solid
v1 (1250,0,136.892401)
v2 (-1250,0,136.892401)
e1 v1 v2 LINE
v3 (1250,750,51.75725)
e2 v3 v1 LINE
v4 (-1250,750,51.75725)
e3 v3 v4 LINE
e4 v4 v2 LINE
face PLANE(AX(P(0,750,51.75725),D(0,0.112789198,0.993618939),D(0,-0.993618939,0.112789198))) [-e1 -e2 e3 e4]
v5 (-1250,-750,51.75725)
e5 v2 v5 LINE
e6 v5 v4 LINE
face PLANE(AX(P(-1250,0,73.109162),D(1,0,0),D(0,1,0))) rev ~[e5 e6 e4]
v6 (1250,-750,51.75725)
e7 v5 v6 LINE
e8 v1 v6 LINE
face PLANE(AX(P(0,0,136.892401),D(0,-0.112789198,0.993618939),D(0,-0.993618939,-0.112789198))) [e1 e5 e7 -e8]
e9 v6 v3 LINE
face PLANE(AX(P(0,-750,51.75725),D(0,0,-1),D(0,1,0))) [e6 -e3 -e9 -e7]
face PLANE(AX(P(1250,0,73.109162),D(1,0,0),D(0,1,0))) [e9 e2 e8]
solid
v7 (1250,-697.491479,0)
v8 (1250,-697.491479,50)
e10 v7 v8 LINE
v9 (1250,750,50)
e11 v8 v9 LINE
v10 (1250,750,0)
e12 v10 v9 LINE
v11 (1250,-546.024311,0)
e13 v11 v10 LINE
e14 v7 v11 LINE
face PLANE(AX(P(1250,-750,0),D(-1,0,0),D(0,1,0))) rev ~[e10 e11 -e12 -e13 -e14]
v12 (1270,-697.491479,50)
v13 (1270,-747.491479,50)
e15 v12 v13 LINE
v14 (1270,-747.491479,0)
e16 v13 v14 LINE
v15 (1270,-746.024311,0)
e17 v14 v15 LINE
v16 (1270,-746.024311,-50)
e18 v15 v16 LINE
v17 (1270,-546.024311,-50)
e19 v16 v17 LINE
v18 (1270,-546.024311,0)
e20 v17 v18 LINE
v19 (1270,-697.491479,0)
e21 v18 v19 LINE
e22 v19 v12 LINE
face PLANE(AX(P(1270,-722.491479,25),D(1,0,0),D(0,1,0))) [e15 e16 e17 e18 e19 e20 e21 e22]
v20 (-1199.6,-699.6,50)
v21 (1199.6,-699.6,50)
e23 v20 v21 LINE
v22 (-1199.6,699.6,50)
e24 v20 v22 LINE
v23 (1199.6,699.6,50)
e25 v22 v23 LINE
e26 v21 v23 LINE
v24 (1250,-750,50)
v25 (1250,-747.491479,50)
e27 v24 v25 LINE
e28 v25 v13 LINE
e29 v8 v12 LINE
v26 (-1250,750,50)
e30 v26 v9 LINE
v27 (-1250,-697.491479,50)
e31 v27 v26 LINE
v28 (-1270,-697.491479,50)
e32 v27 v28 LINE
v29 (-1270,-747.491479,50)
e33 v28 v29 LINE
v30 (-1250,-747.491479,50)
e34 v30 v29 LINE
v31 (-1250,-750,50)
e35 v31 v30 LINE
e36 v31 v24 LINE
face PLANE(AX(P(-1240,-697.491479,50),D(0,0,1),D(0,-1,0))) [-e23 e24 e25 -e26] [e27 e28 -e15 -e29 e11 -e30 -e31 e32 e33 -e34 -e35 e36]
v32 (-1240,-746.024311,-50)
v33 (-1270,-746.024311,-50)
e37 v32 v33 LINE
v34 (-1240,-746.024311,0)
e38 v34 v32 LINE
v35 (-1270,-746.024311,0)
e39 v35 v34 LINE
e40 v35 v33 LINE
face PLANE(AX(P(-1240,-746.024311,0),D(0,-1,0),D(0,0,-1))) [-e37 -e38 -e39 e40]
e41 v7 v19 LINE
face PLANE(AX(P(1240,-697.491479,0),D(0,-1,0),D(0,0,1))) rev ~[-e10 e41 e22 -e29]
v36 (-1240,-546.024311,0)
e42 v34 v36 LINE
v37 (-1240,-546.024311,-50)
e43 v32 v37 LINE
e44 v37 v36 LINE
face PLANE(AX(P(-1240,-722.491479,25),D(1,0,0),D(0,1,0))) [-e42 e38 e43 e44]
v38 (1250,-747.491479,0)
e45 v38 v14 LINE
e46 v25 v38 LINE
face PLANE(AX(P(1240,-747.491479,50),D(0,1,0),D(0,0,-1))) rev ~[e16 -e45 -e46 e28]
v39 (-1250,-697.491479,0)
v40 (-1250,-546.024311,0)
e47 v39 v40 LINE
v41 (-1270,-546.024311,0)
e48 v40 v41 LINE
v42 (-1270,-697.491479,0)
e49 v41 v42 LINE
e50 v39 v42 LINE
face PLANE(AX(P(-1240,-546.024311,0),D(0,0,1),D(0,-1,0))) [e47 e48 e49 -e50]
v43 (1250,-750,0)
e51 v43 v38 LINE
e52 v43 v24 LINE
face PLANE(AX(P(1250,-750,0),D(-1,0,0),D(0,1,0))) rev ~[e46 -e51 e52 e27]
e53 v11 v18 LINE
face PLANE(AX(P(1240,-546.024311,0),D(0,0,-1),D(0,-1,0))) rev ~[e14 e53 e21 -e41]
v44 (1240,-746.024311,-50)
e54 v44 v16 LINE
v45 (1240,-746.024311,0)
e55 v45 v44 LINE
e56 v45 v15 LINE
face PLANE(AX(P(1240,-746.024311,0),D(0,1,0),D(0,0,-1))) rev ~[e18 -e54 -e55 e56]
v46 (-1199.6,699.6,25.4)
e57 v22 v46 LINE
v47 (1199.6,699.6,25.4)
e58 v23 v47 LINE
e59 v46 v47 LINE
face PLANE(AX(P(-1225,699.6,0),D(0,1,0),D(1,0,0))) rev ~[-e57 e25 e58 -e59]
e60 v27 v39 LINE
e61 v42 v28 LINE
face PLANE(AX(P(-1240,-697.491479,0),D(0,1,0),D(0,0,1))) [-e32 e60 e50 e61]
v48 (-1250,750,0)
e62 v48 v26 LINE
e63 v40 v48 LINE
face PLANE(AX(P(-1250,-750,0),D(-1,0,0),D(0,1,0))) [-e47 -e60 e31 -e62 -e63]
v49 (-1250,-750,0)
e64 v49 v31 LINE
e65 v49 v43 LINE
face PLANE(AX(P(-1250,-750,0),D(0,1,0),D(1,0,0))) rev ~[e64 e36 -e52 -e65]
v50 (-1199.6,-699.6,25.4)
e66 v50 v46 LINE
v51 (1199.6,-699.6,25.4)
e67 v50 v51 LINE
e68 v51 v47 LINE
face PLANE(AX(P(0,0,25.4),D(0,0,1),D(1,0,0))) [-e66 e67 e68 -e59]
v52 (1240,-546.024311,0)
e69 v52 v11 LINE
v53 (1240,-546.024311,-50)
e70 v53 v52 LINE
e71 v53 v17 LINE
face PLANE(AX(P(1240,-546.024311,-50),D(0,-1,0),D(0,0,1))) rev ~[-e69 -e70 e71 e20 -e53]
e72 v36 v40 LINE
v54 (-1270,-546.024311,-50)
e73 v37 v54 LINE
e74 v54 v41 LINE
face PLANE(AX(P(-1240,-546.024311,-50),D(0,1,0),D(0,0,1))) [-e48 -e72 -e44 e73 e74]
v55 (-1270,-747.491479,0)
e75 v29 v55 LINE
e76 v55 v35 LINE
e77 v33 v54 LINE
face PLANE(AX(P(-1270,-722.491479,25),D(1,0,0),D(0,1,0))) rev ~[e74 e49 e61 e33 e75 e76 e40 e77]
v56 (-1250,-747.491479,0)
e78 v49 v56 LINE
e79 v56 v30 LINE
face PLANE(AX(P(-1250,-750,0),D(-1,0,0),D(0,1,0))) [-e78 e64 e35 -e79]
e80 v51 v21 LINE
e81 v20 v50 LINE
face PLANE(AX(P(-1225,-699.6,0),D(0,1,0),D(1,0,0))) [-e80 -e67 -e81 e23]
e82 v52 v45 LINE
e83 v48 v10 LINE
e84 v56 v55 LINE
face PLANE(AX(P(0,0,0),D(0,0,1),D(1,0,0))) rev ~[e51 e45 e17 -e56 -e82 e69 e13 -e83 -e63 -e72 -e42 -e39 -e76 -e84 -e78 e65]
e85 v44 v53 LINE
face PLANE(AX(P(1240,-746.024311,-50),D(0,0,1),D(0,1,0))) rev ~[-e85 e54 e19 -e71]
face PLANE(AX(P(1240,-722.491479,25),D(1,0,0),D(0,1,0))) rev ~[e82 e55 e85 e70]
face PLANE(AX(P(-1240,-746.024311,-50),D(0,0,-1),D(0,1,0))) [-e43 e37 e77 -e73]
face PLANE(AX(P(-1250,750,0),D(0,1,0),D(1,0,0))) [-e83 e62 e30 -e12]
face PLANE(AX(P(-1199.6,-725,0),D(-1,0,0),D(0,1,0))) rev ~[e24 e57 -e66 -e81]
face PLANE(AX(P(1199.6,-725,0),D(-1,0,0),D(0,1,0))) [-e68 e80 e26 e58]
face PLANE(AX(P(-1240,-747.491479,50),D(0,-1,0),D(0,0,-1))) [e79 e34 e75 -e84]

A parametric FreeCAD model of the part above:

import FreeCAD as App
import Part
import Sketcher

V = App.Vector
Q = App.Units.Quantity


def faces_at(feature, points):
    """Names of the faces that lie closest to the given points."""
    faces = feature.Shape.Faces
    near = lambda p: min(range(len(faces)), key=lambda i: faces[i].distToShape(Part.Vertex(*p))[0])
    return sorted({f"Face{near(p) + 1}" for p in points})

doc = App.newDocument("Part")
params = doc.addObject("Spreadsheet::Sheet", "Params")
for row, (alias, value) in enumerate([
    ("sketch1_width", "2450 mm"),
    ("sketch1_height", "1450 mm"),
    ("pad1_length", "50 mm"),
    ("thickness_wall", "25.4 mm"),
    ("sketch2_width", "2500 mm"),
    ("sketch2_width2", "2450 mm"),
    ("sketch2_height", "1500 mm"),
    ("sketch2_height2", "1450 mm"),
    ("pad2_length", "50 mm"),
    ("sketch3_width", "200 mm"),
    ("sketch3_width2", "50 mm"),
    ("pad3_length", "30 mm"),
    ("sketch4_width", "200 mm"),
    ("sketch4_width2", "50 mm"),
    ("pad4_length", "30 mm"),
    ("sketch5_width", "1500 mm"),
    ("pad5_length", "2500 mm"),
], start=1):
    params.set(f"A{row}", alias)
    params.set(f"B{row}", "=" + value)
    params.setAlias(f"B{row}", alias)

body = doc.addObject("PartDesign::Body", "Body")

# Sketch on XY plane
sketch1 = doc.addObject("Sketcher::SketchObject", "Sketch")
body.addObject(sketch1)
sketch1.AttachmentSupport = (doc.XY_Plane, [""])
sketch1.MapMode = "FlatFace"
sketch1.addGeometry([
    Part.LineSegment(V(-1225, 725, 0), V(-1225, -725, 0)),
    Part.LineSegment(V(-1225, -725, 0), V(1225, -725, 0)),
    Part.LineSegment(V(1225, -725, 0), V(1225, 725, 0)),
    Part.LineSegment(V(1225, 725, 0), V(-1225, 725, 0)),
], False)
sketch1.addConstraint([
    Sketcher.Constraint("Coincident", 0, 2, 1, 1),
    Sketcher.Constraint("Coincident", 1, 2, 2, 1),
    Sketcher.Constraint("Coincident", 2, 2, 3, 1),
    Sketcher.Constraint("Coincident", 3, 2, 0, 1),
    Sketcher.Constraint("Vertical", 0),
    Sketcher.Constraint("Horizontal", 1),
    Sketcher.Constraint("Vertical", 2),
    Sketcher.Constraint("Horizontal", 3),
    Sketcher.Constraint("Symmetric", 0, 2, 2, 2, -1, 1),
    Sketcher.Constraint("DistanceX", 1, 1, 1, 2, Q("2450 mm")),
    Sketcher.Constraint("DistanceY", 0, 2, 0, 1, Q("1450 mm")),
])
sketch1.setExpression("Constraints[9]", "Params.sketch1_width")
sketch1.setExpression("Constraints[10]", "Params.sketch1_height")
pad1 = doc.addObject("PartDesign::Pad", "Pad")
body.addObject(pad1)
pad1.Profile = sketch1
pad1.setExpression("Length", "Params.pad1_length")
doc.recompute()

thickness = doc.addObject("PartDesign::Thickness", "Thickness")
body.addObject(thickness)
thickness.Base = (pad1, faces_at(pad1, [(0, 0, 50)]))
thickness.setExpression("Value", "Params.thickness_wall")
thickness.Reversed = True
thickness.Join = "Arc"

# Sketch on XY plane
sketch2 = doc.addObject("Sketcher::SketchObject", "Sketch001")
body.addObject(sketch2)
sketch2.AttachmentSupport = (doc.XY_Plane, [""])
sketch2.MapMode = "FlatFace"
sketch2.addGeometry([
    Part.LineSegment(V(-1250, 750, 0), V(-1250, -750, 0)),  # 0
    Part.LineSegment(V(-1250, -750, 0), V(1250, -750, 0)),  # 1
    Part.LineSegment(V(1250, -750, 0), V(1250, 750, 0)),  # 2
    Part.LineSegment(V(1250, 750, 0), V(-1250, 750, 0)),  # 3
    Part.LineSegment(V(1225, -725, 0), V(-1225, -725, 0)),  # 4
    Part.LineSegment(V(-1225, -725, 0), V(-1225, 725, 0)),  # 5
    Part.LineSegment(V(-1225, 725, 0), V(1225, 725, 0)),  # 6
    Part.LineSegment(V(1225, 725, 0), V(1225, -725, 0)),  # 7
], False)
sketch2.addConstraint([
    Sketcher.Constraint("Coincident", 0, 2, 1, 1),
    Sketcher.Constraint("Coincident", 1, 2, 2, 1),
    Sketcher.Constraint("Coincident", 2, 2, 3, 1),
    Sketcher.Constraint("Coincident", 3, 2, 0, 1),
    Sketcher.Constraint("Coincident", 4, 2, 5, 1),
    Sketcher.Constraint("Coincident", 5, 2, 6, 1),
    Sketcher.Constraint("Coincident", 6, 2, 7, 1),
    Sketcher.Constraint("Coincident", 7, 2, 4, 1),
    Sketcher.Constraint("Vertical", 0),
    Sketcher.Constraint("Horizontal", 1),
    Sketcher.Constraint("Vertical", 2),
    Sketcher.Constraint("Horizontal", 3),
    Sketcher.Constraint("Horizontal", 4),
    Sketcher.Constraint("Vertical", 5),
    Sketcher.Constraint("Horizontal", 6),
    Sketcher.Constraint("Vertical", 7),
    Sketcher.Constraint("Symmetric", 0, 2, 2, 2, -1, 1),
    Sketcher.Constraint("Symmetric", 4, 2, 6, 2, -1, 1),
    Sketcher.Constraint("DistanceX", 1, 1, 1, 2, Q("2500 mm")),
    Sketcher.Constraint("DistanceX", 4, 2, 4, 1, Q("2450 mm")),
    Sketcher.Constraint("DistanceY", 0, 2, 0, 1, Q("1500 mm")),
    Sketcher.Constraint("DistanceY", 5, 1, 5, 2, Q("1450 mm")),
])
sketch2.setExpression("Constraints[18]", "Params.sketch2_width")
sketch2.setExpression("Constraints[19]", "Params.sketch2_width2")
sketch2.setExpression("Constraints[20]", "Params.sketch2_height")
sketch2.setExpression("Constraints[21]", "Params.sketch2_height2")
pad2 = doc.addObject("PartDesign::Pad", "Pad001")
body.addObject(pad2)
pad2.Profile = sketch2
pad2.setExpression("Length", "Params.pad2_length")

# Sketch on YZ plane
sketch3 = doc.addObject("Sketcher::SketchObject", "Sketch002")
body.addObject(sketch3)
sketch3.AttachmentSupport = (doc.YZ_Plane, [""])
sketch3.MapMode = "FlatFace"
sketch3.AttachmentOffset = App.Placement(V(0, 0, -1240), App.Rotation())
sketch3.addGeometry([
    Part.LineSegment(V(-747.491479, 0, 0), V(-746.024311, 0, 0)),  # 0
    Part.LineSegment(V(-746.024311, 0, 0), V(-746.024311, -50, 0)),  # 1
    Part.LineSegment(V(-746.024311, -50, 0), V(-546.024311, -50, 0)),  # 2
    Part.LineSegment(V(-546.024311, -50, 0), V(-546.024311, 0, 0)),  # 3
    Part.LineSegment(V(-546.024311, 0, 0), V(-697.491479, 0, 0)),  # 4
    Part.LineSegment(V(-697.491479, 0, 0), V(-697.491479, 50, 0)),  # 5
    Part.LineSegment(V(-697.491479, 50, 0), V(-747.491479, 50, 0)),  # 6
    Part.LineSegment(V(-747.491479, 50, 0), V(-747.491479, 0, 0)),  # 7
], False)
sketch3.addConstraint([
    Sketcher.Constraint("Coincident", 0, 2, 1, 1),
    Sketcher.Constraint("Coincident", 1, 2, 2, 1),
    Sketcher.Constraint("Coincident", 2, 2, 3, 1),
    Sketcher.Constraint("Coincident", 3, 2, 4, 1),
    Sketcher.Constraint("Coincident", 4, 2, 5, 1),
    Sketcher.Constraint("Coincident", 5, 2, 6, 1),
    Sketcher.Constraint("Coincident", 6, 2, 7, 1),
    Sketcher.Constraint("Coincident", 7, 2, 0, 1),
    Sketcher.Constraint("Horizontal", 0),
    Sketcher.Constraint("Vertical", 1),
    Sketcher.Constraint("Horizontal", 2),
    Sketcher.Constraint("Vertical", 3),
    Sketcher.Constraint("Horizontal", 4),
    Sketcher.Constraint("Vertical", 5),
    Sketcher.Constraint("Horizontal", 6),
    Sketcher.Constraint("Vertical", 7),
    Sketcher.Constraint("PointOnObject", 0, 2, -1),
    Sketcher.Constraint("PointOnObject", 3, 2, -1),
    Sketcher.Constraint("Equal", 6, 1),
    Sketcher.Constraint("Equal", 3, 5),
    Sketcher.Constraint("DistanceX", 2, 1, 2, 2, Q("200 mm")),
    Sketcher.Constraint("DistanceX", 6, 2, 6, 1, Q("50 mm")),
    Sketcher.Constraint("DistanceX", 0, 1, 0, 2, Q("1.467167 mm")),
    Sketcher.Constraint("DistanceX", 0, 2, -1, 1, Q("746.024311 mm")),
])
sketch3.setExpression("Constraints[20]", "Params.sketch3_width")
sketch3.setExpression("Constraints[21]", "Params.sketch3_width2")
pad3 = doc.addObject("PartDesign::Pad", "Pad002")
body.addObject(pad3)
pad3.Profile = sketch3
pad3.setExpression("Length", "Params.pad3_length")
pad3.Reversed = True

# Sketch on YZ plane
sketch4 = doc.addObject("Sketcher::SketchObject", "Sketch003")
body.addObject(sketch4)
sketch4.AttachmentSupport = (doc.YZ_Plane, [""])
sketch4.MapMode = "FlatFace"
sketch4.AttachmentOffset = App.Placement(V(0, 0, 1240), App.Rotation())
sketch4.addGeometry([
    Part.LineSegment(V(-747.491479, 0, 0), V(-746.024311, 0, 0)),  # 0
    Part.LineSegment(V(-746.024311, 0, 0), V(-746.024311, -50, 0)),  # 1
    Part.LineSegment(V(-746.024311, -50, 0), V(-546.024311, -50, 0)),  # 2
    Part.LineSegment(V(-546.024311, -50, 0), V(-546.024311, 0, 0)),  # 3
    Part.LineSegment(V(-546.024311, 0, 0), V(-697.491479, 0, 0)),  # 4
    Part.LineSegment(V(-697.491479, 0, 0), V(-697.491479, 50, 0)),  # 5
    Part.LineSegment(V(-697.491479, 50, 0), V(-747.491479, 50, 0)),  # 6
    Part.LineSegment(V(-747.491479, 50, 0), V(-747.491479, 0, 0)),  # 7
], False)
sketch4.addConstraint([
    Sketcher.Constraint("Coincident", 0, 2, 1, 1),
    Sketcher.Constraint("Coincident", 1, 2, 2, 1),
    Sketcher.Constraint("Coincident", 2, 2, 3, 1),
    Sketcher.Constraint("Coincident", 3, 2, 4, 1),
    Sketcher.Constraint("Coincident", 4, 2, 5, 1),
    Sketcher.Constraint("Coincident", 5, 2, 6, 1),
    Sketcher.Constraint("Coincident", 6, 2, 7, 1),
    Sketcher.Constraint("Coincident", 7, 2, 0, 1),
    Sketcher.Constraint("Horizontal", 0),
    Sketcher.Constraint("Vertical", 1),
    Sketcher.Constraint("Horizontal", 2),
    Sketcher.Constraint("Vertical", 3),
    Sketcher.Constraint("Horizontal", 4),
    Sketcher.Constraint("Vertical", 5),
    Sketcher.Constraint("Horizontal", 6),
    Sketcher.Constraint("Vertical", 7),
    Sketcher.Constraint("PointOnObject", 0, 2, -1),
    Sketcher.Constraint("PointOnObject", 3, 2, -1),
    Sketcher.Constraint("Equal", 6, 1),
    Sketcher.Constraint("Equal", 3, 5),
    Sketcher.Constraint("DistanceX", 2, 1, 2, 2, Q("200 mm")),
    Sketcher.Constraint("DistanceX", 6, 2, 6, 1, Q("50 mm")),
    Sketcher.Constraint("DistanceX", 0, 1, 0, 2, Q("1.467167 mm")),
    Sketcher.Constraint("DistanceX", 0, 2, -1, 1, Q("746.024311 mm")),
])
sketch4.setExpression("Constraints[20]", "Params.sketch4_width")
sketch4.setExpression("Constraints[21]", "Params.sketch4_width2")
pad4 = doc.addObject("PartDesign::Pad", "Pad003")
body.addObject(pad4)
pad4.Profile = sketch4
pad4.setExpression("Length", "Params.pad4_length")
body2 = doc.addObject("PartDesign::Body", "Body001")

# Sketch on YZ plane
sketch5 = doc.addObject("Sketcher::SketchObject", "Sketch004")
body2.addObject(sketch5)
sketch5.AttachmentSupport = (doc.getObject("YZ_Plane001"), [""])
sketch5.MapMode = "FlatFace"
sketch5.addGeometry([
    Part.LineSegment(V(0, 136.892401, 0), V(-750, 51.75725, 0)),
    Part.LineSegment(V(-750, 51.75725, 0), V(750, 51.75725, 0)),
    Part.LineSegment(V(750, 51.75725, 0), V(0, 136.892401, 0)),
], False)
sketch5.addConstraint([
    Sketcher.Constraint("Coincident", 0, 2, 1, 1),
    Sketcher.Constraint("Coincident", 1, 2, 2, 1),
    Sketcher.Constraint("Coincident", 2, 2, 0, 1),
    Sketcher.Constraint("Horizontal", 1),
    Sketcher.Constraint("PointOnObject", 2, 2, -2),
    Sketcher.Constraint("Equal", 0, 2),
    Sketcher.Constraint("DistanceX", 1, 1, 1, 2, Q("1500 mm")),
    Sketcher.Constraint("DistanceY", -1, 1, 2, 2, Q("136.892401 mm")),
    Sketcher.Constraint("Distance", 0, Q("754.81653 mm")),
])
sketch5.setExpression("Constraints[6]", "Params.sketch5_width")
pad5 = doc.addObject("PartDesign::Pad", "Pad004")
body2.addObject(pad5)
pad5.Profile = sketch5
pad5.setExpression("Length", "Params.pad5_length")
pad5.Midplane = True

doc.recompute()
